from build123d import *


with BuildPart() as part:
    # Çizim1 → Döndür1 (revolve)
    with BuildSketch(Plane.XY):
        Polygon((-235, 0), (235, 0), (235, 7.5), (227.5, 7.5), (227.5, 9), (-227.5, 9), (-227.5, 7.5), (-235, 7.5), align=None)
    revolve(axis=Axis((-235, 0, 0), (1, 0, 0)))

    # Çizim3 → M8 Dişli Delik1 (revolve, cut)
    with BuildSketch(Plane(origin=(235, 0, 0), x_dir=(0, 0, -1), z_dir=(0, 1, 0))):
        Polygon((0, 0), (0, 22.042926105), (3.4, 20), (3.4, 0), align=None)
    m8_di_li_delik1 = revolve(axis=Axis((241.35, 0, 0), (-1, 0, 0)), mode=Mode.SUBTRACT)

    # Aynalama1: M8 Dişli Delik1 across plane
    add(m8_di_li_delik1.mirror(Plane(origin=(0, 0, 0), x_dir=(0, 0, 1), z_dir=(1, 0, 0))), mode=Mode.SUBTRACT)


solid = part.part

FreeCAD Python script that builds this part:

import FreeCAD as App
import Part
import Sketcher

V = App.Vector
Q = App.Units.Quantity

doc = App.newDocument("Part")
body = doc.addObject("PartDesign::Body", "Body")

# Sketch on XY plane
sketch1 = body.newObject("Sketcher::SketchObject", "Sketch")
sketch1.AttachmentSupport = (doc.getObject("XY_Plane"), [""])
sketch1.MapMode = "FlatFace"
sketch1.addGeometry([
    Part.LineSegment(V(-235, 0, 0), V(235, 0, 0)),  # 0
    Part.LineSegment(V(235, 0, 0), V(235, 7.5, 0)),  # 1
    Part.LineSegment(V(235, 7.5, 0), V(227.5, 7.5, 0)),  # 2
    Part.LineSegment(V(227.5, 7.5, 0), V(227.5, 9, 0)),  # 3
    Part.LineSegment(V(227.5, 9, 0), V(-227.5, 9, 0)),  # 4
    Part.LineSegment(V(-227.5, 9, 0), V(-227.5, 7.5, 0)),  # 5
    Part.LineSegment(V(-227.5, 7.5, 0), V(-235, 7.5, 0)),  # 6
    Part.LineSegment(V(-235, 7.5, 0), V(-235, 0, 0)),  # 7
], False)
sketch1.addConstraint([
    Sketcher.Constraint("Coincident", 0, 2, 1, 1),
    Sketcher.Constraint("Coincident", 1, 2, 2, 1),
    Sketcher.Constraint("Coincident", 2, 2, 3, 1),
    Sketcher.Constraint("Coincident", 3, 2, 4, 1),
    Sketcher.Constraint("Coincident", 4, 2, 5, 1),
    Sketcher.Constraint("Coincident", 5, 2, 6, 1),
    Sketcher.Constraint("Coincident", 6, 2, 7, 1),
    Sketcher.Constraint("Coincident", 7, 2, 0, 1),
    Sketcher.Constraint("Horizontal", 0),
    Sketcher.Constraint("Vertical", 1),
    Sketcher.Constraint("Horizontal", 2),
    Sketcher.Constraint("Vertical", 3),
    Sketcher.Constraint("Horizontal", 4),
    Sketcher.Constraint("Vertical", 5),
    Sketcher.Constraint("Horizontal", 6),
    Sketcher.Constraint("Vertical", 7),
    Sketcher.Constraint("Symmetric", 0, 2, 7, 2, -1, 1),
    Sketcher.Constraint("Symmetric", 2, 2, 5, 2, -2),
    Sketcher.Constraint("Equal", 6, 1),
    Sketcher.Constraint("DistanceX", 0, 1, 0, 2, 470.0),
    Sketcher.Constraint("DistanceX", 4, 2, 4, 1, 455.0),
    Sketcher.Constraint("DistanceY", 3, 1, 3, 2, 1.5),
])
revolution = body.newObject("PartDesign::Revolution", "Revolution")
revolution.Profile = sketch1
revolution.ReferenceAxis = (sketch1, ["H_Axis"])
revolution.Angle = 360

# Sketch on XZ plane
sketch2 = body.newObject("Sketcher::SketchObject", "Sketch001")
sketch2.AttachmentSupport = (doc.getObject("XZ_Plane"), [""])
sketch2.MapMode = "FlatFace"
sketch2.addGeometry([
    Part.LineSegment(V(213, 0, 0), V(235, 0, 0)),
    Part.LineSegment(V(235, 0, 0), V(235, -3.4, 0)),
    Part.LineSegment(V(235, -3.4, 0), V(215, -3.4, 0)),
    Part.LineSegment(V(215, -3.4, 0), V(213, 0, 0)),
], False)
sketch2.addConstraint([
    Sketcher.Constraint("Coincident", 0, 2, 1, 1),
    Sketcher.Constraint("Coincident", 1, 2, 2, 1),
    Sketcher.Constraint("Coincident", 2, 2, 3, 1),
    Sketcher.Constraint("Coincident", 3, 2, 0, 1),
    Sketcher.Constraint("Horizontal", 0),
    Sketcher.Constraint("Vertical", 1),
    Sketcher.Constraint("Horizontal", 2),
    Sketcher.Constraint("PointOnObject", 0, 2, -1),
    Sketcher.Constraint("DistanceX", 2, 2, 2, 1, 20.0),
    Sketcher.Constraint("Angle", 3, Q("121 deg")),
    Sketcher.Constraint("DistanceY", 1, 2, 1, 1, 3.4),
    Sketcher.Constraint("DistanceX", -1, 1, 0, 2, 235.0),
])
groove = body.newObject("PartDesign::Groove", "Groove")
groove.Profile = sketch2
groove.ReferenceAxis = (sketch2, ["H_Axis"])
groove.Angle = 360
doc.recompute()

mirrored = body.newObject("PartDesign::Mirrored", "Mirrored")
mirrored.Originals = [groove]
mirrored.MirrorPlane = (doc.getObject("YZ_Plane"), [""])
body.Tip = mirrored

doc.recompute()
